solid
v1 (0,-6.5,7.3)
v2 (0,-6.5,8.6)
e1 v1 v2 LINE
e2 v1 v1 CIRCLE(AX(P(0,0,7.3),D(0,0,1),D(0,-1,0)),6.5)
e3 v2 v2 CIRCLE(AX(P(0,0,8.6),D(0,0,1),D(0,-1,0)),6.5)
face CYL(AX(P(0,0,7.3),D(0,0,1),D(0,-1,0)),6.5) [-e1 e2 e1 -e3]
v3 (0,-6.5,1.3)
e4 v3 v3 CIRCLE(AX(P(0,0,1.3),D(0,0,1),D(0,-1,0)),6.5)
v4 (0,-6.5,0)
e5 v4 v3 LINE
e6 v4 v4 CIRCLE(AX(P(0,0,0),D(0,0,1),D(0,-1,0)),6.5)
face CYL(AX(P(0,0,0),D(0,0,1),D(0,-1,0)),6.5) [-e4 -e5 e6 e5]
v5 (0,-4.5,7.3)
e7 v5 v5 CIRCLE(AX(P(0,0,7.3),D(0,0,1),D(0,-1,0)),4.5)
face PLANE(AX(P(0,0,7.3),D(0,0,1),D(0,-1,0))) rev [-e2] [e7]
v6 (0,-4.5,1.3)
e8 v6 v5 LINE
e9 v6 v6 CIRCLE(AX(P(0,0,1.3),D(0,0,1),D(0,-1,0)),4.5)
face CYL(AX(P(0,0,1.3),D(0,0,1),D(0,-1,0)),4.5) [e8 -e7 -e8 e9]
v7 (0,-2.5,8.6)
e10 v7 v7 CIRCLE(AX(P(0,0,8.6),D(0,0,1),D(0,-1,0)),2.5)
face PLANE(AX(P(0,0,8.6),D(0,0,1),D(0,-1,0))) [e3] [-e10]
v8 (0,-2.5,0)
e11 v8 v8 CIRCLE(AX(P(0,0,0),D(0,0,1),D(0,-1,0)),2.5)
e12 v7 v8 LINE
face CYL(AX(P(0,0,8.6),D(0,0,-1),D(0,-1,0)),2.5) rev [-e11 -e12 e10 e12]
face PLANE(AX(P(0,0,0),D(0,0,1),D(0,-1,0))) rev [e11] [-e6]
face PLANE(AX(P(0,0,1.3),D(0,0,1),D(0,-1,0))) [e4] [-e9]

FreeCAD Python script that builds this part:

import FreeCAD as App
import Part
import Sketcher

V = App.Vector


def add_polygon(sketch, points):
    """Adds a closed chain of lines whose ends are joined by coincident constraints."""
    first, n = sketch.GeometryCount, len(points)
    for a, b in zip(points, points[1:] + points[:1]):
        sketch.addGeometry(Part.LineSegment(App.Vector(*a, 0), App.Vector(*b, 0)), False)
    for i in range(n):
        sketch.addConstraint(Sketcher.Constraint("Coincident", first + i, 2, first + (i + 1) % n, 1))

doc = App.newDocument("Part")
body = doc.addObject("PartDesign::Body", "Body")

# Sketch on YZ plane
sketch1 = body.newObject("Sketcher::SketchObject", "Sketch")
sketch1.AttachmentSupport = (doc.getObject("YZ_Plane"), [""])
sketch1.MapMode = "FlatFace"
add_polygon(sketch1, [(-2.5, 8.6), (-6.5, 8.6), (-6.5, 7.3), (-4.5, 7.3), (-4.5, 1.3), (-6.5, 1.3), (-6.5, 0), (-2.5, 0)])  # lines 0-7
sketch1.addConstraint(Sketcher.Constraint("Horizontal", 0))
sketch1.addConstraint(Sketcher.Constraint("Vertical", 1))
sketch1.addConstraint(Sketcher.Constraint("Horizontal", 2))
sketch1.addConstraint(Sketcher.Constraint("Vertical", 3))
sketch1.addConstraint(Sketcher.Constraint("Horizontal", 4))
sketch1.addConstraint(Sketcher.Constraint("Vertical", 5))
sketch1.addConstraint(Sketcher.Constraint("Horizontal", 6))
sketch1.addConstraint(Sketcher.Constraint("Vertical", 7))
sketch1.addConstraint(Sketcher.Constraint("PointOnObject", 5, 2, -1))
sketch1.addConstraint(Sketcher.Constraint("Vertical", 1, 2, 4, 2))
sketch1.addConstraint(Sketcher.Constraint("Equal", 1, 5))
sketch1.addConstraint(Sketcher.Constraint("DistanceX", 0, 2, 0, 1, 4.0))
sketch1.addConstraint(Sketcher.Constraint("DistanceX", 2, 1, 2, 2, 2.0))
sketch1.addConstraint(Sketcher.Constraint("DistanceY", 3, 2, 3, 1, 6.0))
sketch1.addConstraint(Sketcher.Constraint("DistanceY", 1, 2, 1, 1, 1.3))
sketch1.addConstraint(Sketcher.Constraint("DistanceX", 0, 2, -1, 1, 6.5))
revolution = body.newObject("PartDesign::Revolution", "Revolution")
revolution.Profile = sketch1
revolution.ReferenceAxis = (sketch1, ["V_Axis"])
revolution.Angle = 360

doc.recompute()
